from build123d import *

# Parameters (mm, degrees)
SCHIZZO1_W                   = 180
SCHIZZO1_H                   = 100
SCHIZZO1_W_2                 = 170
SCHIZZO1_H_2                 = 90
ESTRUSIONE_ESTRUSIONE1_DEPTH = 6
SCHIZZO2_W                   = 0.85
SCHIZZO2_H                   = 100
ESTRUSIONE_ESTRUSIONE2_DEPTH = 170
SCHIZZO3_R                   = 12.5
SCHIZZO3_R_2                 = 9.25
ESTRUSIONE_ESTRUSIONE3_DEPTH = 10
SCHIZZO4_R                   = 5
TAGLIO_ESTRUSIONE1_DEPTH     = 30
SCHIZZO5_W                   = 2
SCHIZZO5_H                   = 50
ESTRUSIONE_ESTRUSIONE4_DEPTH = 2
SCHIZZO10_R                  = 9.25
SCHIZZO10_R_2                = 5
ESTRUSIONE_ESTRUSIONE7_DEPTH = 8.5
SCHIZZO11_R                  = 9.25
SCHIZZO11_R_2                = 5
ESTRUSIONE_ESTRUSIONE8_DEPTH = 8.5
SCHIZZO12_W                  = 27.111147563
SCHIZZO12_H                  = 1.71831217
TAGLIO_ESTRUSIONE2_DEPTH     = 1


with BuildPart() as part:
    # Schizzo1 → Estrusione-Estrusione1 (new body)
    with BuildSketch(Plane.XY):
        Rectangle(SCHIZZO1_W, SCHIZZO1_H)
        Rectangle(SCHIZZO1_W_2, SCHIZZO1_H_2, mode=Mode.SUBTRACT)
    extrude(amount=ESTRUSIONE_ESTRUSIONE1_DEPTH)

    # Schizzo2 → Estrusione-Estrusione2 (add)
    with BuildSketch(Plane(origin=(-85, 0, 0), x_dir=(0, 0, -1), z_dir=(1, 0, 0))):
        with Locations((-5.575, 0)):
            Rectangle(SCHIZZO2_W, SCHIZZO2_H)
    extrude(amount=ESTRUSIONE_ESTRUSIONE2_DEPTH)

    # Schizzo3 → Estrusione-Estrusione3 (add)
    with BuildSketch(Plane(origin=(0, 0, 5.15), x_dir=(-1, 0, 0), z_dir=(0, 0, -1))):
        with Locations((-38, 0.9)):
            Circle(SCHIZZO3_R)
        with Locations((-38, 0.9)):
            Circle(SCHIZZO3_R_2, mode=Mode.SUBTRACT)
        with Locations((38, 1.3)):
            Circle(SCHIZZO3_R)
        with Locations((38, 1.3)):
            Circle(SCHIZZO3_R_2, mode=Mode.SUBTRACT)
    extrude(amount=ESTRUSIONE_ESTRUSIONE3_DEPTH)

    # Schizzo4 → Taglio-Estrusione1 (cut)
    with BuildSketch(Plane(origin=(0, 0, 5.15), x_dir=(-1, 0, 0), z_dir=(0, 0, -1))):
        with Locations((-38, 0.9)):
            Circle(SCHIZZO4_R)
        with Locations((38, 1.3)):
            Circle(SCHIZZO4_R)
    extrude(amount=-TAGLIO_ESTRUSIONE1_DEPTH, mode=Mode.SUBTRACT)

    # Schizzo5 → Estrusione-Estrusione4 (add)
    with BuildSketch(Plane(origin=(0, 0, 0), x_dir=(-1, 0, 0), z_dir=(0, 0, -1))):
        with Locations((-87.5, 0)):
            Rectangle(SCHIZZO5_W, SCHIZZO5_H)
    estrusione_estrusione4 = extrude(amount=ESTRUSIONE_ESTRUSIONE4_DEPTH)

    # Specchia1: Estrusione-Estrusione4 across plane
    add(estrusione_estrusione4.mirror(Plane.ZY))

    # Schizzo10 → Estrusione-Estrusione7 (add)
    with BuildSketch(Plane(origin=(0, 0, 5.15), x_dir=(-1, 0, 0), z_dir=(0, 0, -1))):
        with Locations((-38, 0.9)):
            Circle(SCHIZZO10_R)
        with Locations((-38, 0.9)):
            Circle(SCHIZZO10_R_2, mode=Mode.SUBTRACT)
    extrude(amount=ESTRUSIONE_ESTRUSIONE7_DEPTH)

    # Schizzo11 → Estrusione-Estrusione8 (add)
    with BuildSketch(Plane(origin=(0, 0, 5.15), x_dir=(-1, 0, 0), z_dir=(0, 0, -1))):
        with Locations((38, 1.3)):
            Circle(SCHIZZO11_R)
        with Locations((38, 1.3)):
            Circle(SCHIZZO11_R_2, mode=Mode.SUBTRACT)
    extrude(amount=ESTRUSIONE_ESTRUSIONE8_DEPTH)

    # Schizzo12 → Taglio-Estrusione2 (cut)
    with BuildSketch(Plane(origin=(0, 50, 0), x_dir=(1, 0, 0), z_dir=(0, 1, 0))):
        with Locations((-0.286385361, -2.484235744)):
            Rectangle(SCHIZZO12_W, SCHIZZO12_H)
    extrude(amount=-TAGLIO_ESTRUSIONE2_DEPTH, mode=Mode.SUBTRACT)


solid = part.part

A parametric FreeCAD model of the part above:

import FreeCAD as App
import Part
import Sketcher


def add_polygon(sketch, points):
    """Adds a closed chain of lines whose ends are joined by coincident constraints."""
    first, n = sketch.GeometryCount, len(points)
    for a, b in zip(points, points[1:] + points[:1]):
        sketch.addGeometry(Part.LineSegment(App.Vector(*a, 0), App.Vector(*b, 0)), False)
    for i in range(n):
        sketch.addConstraint(Sketcher.Constraint("Coincident", first + i, 2, first + (i + 1) % n, 1))

doc = App.newDocument("Part")
body = doc.addObject("PartDesign::Body", "Body")

# Sketch on XY plane
sketch1 = body.newObject("Sketcher::SketchObject", "Sketch")
sketch1.AttachmentSupport = (doc.getObject("XY_Plane"), [""])
sketch1.MapMode = "FlatFace"
add_polygon(sketch1, [(-90, 50), (-90, -50), (90, -50), (90, 50)])  # lines 0-3
add_polygon(sketch1, [(85, -45), (-85, -45), (-85, 45), (85, 45)])  # lines 4-7
sketch1.addConstraint([
    Sketcher.Constraint("Vertical", 0),
    Sketcher.Constraint("Horizontal", 1),
    Sketcher.Constraint("Vertical", 2),
    Sketcher.Constraint("Horizontal", 3),
    Sketcher.Constraint("Horizontal", 4),
    Sketcher.Constraint("Vertical", 5),
    Sketcher.Constraint("Horizontal", 6),
    Sketcher.Constraint("Vertical", 7),
    Sketcher.Constraint("Symmetric", 0, 2, 2, 2, -1, 1),
    Sketcher.Constraint("Symmetric", 4, 2, 6, 2, -1, 1),
    Sketcher.Constraint("DistanceX", 1, 1, 1, 2, 180.0),
    Sketcher.Constraint("DistanceX", 4, 2, 4, 1, 170.0),
    Sketcher.Constraint("DistanceY", 0, 2, 0, 1, 100.0),
    Sketcher.Constraint("DistanceY", 5, 1, 5, 2, 90.0),
])
pad1 = body.newObject("PartDesign::Pad", "Pad")
pad1.Profile = sketch1
pad1.Length = 6

# Sketch on YZ plane
sketch2 = body.newObject("Sketcher::SketchObject", "Sketch001")
sketch2.AttachmentSupport = (doc.getObject("YZ_Plane"), [""])
sketch2.MapMode = "FlatFace"
sketch2.AttachmentOffset = App.Placement(App.Vector(0, 0, -85), App.Rotation())
add_polygon(sketch2, [(50, 6), (-50, 6), (-50, 5.15), (50, 5.15)])  # lines 0-3
sketch2.addConstraint([
    Sketcher.Constraint("Horizontal", 0),
    Sketcher.Constraint("Vertical", 1),
    Sketcher.Constraint("Horizontal", 2),
    Sketcher.Constraint("Vertical", 3),
    Sketcher.Constraint("DistanceX", 0, 2, 0, 1, 100.0),
    Sketcher.Constraint("DistanceX", 0, 2, -1, 1, 50.0),
    Sketcher.Constraint("DistanceY", -1, 1, 0, 2, 6.0),
    Sketcher.Constraint("DistanceY", 1, 2, 1, 1, 0.85),
])
pad2 = body.newObject("PartDesign::Pad", "Pad001")
pad2.Profile = sketch2
pad2.Length = 170

# Sketch on XY plane
sketch3 = body.newObject("Sketcher::SketchObject", "Sketch002")
sketch3.AttachmentSupport = (doc.getObject("XY_Plane"), [""])
sketch3.MapMode = "FlatFace"
sketch3.AttachmentOffset = App.Placement(App.Vector(0, 0, 5.15), App.Rotation())
sketch3.addGeometry([
    Part.Circle(App.Vector(38, 0.9, 0), App.Vector(0, 0, 1), 12.5),
    Part.Circle(App.Vector(38, 0.9, 0), App.Vector(0, 0, 1), 9.25),
    Part.Circle(App.Vector(-38, 1.3, 0), App.Vector(0, 0, 1), 12.5),
    Part.Circle(App.Vector(-38, 1.3, 0), App.Vector(0, 0, 1), 9.25),
], False)
sketch3.addConstraint([
    Sketcher.Constraint("Coincident", 1, 3, 0, 3),
    Sketcher.Constraint("Coincident", 3, 3, 2, 3),
    Sketcher.Constraint("Equal", 0, 2),
    Sketcher.Constraint("Equal", 1, 3),
    Sketcher.Constraint("Diameter", 0, 25.0),
    Sketcher.Constraint("Diameter", 1, 18.5),
    Sketcher.Constraint("DistanceX", -1, 1, 0, 3, 38.0),
    Sketcher.Constraint("DistanceX", 2, 3, -1, 1, 38.0),
    Sketcher.Constraint("DistanceY", -1, 1, 0, 3, 0.9),
    Sketcher.Constraint("DistanceY", -1, 1, 2, 3, 1.3),
])
pad3 = body.newObject("PartDesign::Pad", "Pad002")
pad3.Profile = sketch3
pad3.Length = 10
pad3.Reversed = True

# Sketch on XY plane
sketch4 = body.newObject("Sketcher::SketchObject", "Sketch003")
sketch4.AttachmentSupport = (doc.getObject("XY_Plane"), [""])
sketch4.MapMode = "FlatFace"
sketch4.AttachmentOffset = App.Placement(App.Vector(0, 0, 5.15), App.Rotation())
sketch4.addGeometry([
    Part.Circle(App.Vector(38, 0.9, 0), App.Vector(0, 0, 1), 5),
    Part.Circle(App.Vector(-38, 1.3, 0), App.Vector(0, 0, 1), 5),
], False)
sketch4.addConstraint([
    Sketcher.Constraint("Equal", 0, 1),
    Sketcher.Constraint("Diameter", 0, 10.0),
    Sketcher.Constraint("DistanceX", -1, 1, 0, 3, 38.0),
    Sketcher.Constraint("DistanceX", 1, 3, -1, 1, 38.0),
    Sketcher.Constraint("DistanceY", -1, 1, 0, 3, 0.9),
    Sketcher.Constraint("DistanceY", -1, 1, 1, 3, 1.3),
])
pocket1 = body.newObject("PartDesign::Pocket", "Pocket")
pocket1.Profile = sketch4
pocket1.Length = 30
pocket1.Reversed = True

# Sketch on XY plane
sketch5 = body.newObject("Sketcher::SketchObject", "Sketch004")
sketch5.AttachmentSupport = (doc.getObject("XY_Plane"), [""])
sketch5.MapMode = "FlatFace"
add_polygon(sketch5, [(88.5, 25), (88.5, -25), (86.5, -25), (86.5, 25)])  # lines 0-3
sketch5.addConstraint([
    Sketcher.Constraint("Vertical", 0),
    Sketcher.Constraint("Horizontal", 1),
    Sketcher.Constraint("Vertical", 2),
    Sketcher.Constraint("Horizontal", 3),
    Sketcher.Constraint("DistanceX", 1, 2, 1, 1, 2.0),
    Sketcher.Constraint("DistanceY", 0, 2, 0, 1, 50.0),
    Sketcher.Constraint("DistanceY", 0, 2, -1, 1, 25.0),
    Sketcher.Constraint("DistanceX", -1, 1, 0, 2, 88.5),
])
pad4 = body.newObject("PartDesign::Pad", "Pad003")
pad4.Profile = sketch5
pad4.Length = 2
pad4.Reversed = True
doc.recompute()

mirrored = body.newObject("PartDesign::Mirrored", "Mirrored")
mirrored.Originals = [pad4]
mirrored.MirrorPlane = (doc.getObject("YZ_Plane"), [""])
body.Tip = mirrored

# Sketch on XY plane
sketch6 = body.newObject("Sketcher::SketchObject", "Sketch005")
sketch6.AttachmentSupport = (doc.getObject("XY_Plane"), [""])
sketch6.MapMode = "FlatFace"
sketch6.AttachmentOffset = App.Placement(App.Vector(0, 0, 5.15), App.Rotation())
sketch6.addGeometry([
    Part.Circle(App.Vector(38, 0.9, 0), App.Vector(0, 0, 1), 9.25),
    Part.Circle(App.Vector(38, 0.9, 0), App.Vector(0, 0, 1), 5),
], False)
sketch6.addConstraint([
    Sketcher.Constraint("Coincident", 1, 3, 0, 3),
    Sketcher.Constraint("Diameter", 1, 10.0),
    Sketcher.Constraint("Diameter", 0, 18.5),
    Sketcher.Constraint("DistanceX", -1, 1, 0, 3, 38.0),
    Sketcher.Constraint("DistanceY", -1, 1, 0, 3, 0.9),
])
pad5 = body.newObject("PartDesign::Pad", "Pad004")
pad5.Profile = sketch6
pad5.Length = 8.5
pad5.Reversed = True

# Sketch on XY plane
sketch7 = body.newObject("Sketcher::SketchObject", "Sketch006")
sketch7.AttachmentSupport = (doc.getObject("XY_Plane"), [""])
sketch7.MapMode = "FlatFace"
sketch7.AttachmentOffset = App.Placement(App.Vector(0, 0, 5.15), App.Rotation())
sketch7.addGeometry([
    Part.Circle(App.Vector(-38, 1.3, 0), App.Vector(0, 0, 1), 9.25),
    Part.Circle(App.Vector(-38, 1.3, 0), App.Vector(0, 0, 1), 5),
], False)
sketch7.addConstraint([
    Sketcher.Constraint("Coincident", 1, 3, 0, 3),
    Sketcher.Constraint("Diameter", 1, 10.0),
    Sketcher.Constraint("Diameter", 0, 18.5),
    Sketcher.Constraint("DistanceX", 0, 3, -1, 1, 38.0),
    Sketcher.Constraint("DistanceY", -1, 1, 0, 3, 1.3),
])
pad6 = body.newObject("PartDesign::Pad", "Pad005")
pad6.Profile = sketch7
pad6.Length = 8.5
pad6.Reversed = True

# Sketch on XZ plane
sketch8 = body.newObject("Sketcher::SketchObject", "Sketch007")
sketch8.AttachmentSupport = (doc.getObject("XZ_Plane"), [""])
sketch8.MapMode = "FlatFace"
sketch8.AttachmentOffset = App.Placement(App.Vector(0, 0, -50), App.Rotation())
add_polygon(sketch8, [(-13.841959, 1.62508), (-13.841959, 3.343392), (13.269188, 3.343392), (13.269188, 1.62508)])  # lines 0-3
sketch8.addConstraint([
    Sketcher.Constraint("Vertical", 0),
    Sketcher.Constraint("Horizontal", 1),
    Sketcher.Constraint("Vertical", 2),
    Sketcher.Constraint("Horizontal", 3),
    Sketcher.Constraint("DistanceX", 1, 1, 1, 2, 27.111148),
    Sketcher.Constraint("DistanceY", 0, 1, 0, 2, 1.718312),
    Sketcher.Constraint("DistanceX", 0, 2, -1, 1, 13.841959),
    Sketcher.Constraint("DistanceY", -1, 1, 0, 2, 3.343392),
])
pocket2 = body.newObject("PartDesign::Pocket", "Pocket001")
pocket2.Profile = sketch8
pocket2.Length = 1
pocket2.Reversed = True

doc.recompute()
